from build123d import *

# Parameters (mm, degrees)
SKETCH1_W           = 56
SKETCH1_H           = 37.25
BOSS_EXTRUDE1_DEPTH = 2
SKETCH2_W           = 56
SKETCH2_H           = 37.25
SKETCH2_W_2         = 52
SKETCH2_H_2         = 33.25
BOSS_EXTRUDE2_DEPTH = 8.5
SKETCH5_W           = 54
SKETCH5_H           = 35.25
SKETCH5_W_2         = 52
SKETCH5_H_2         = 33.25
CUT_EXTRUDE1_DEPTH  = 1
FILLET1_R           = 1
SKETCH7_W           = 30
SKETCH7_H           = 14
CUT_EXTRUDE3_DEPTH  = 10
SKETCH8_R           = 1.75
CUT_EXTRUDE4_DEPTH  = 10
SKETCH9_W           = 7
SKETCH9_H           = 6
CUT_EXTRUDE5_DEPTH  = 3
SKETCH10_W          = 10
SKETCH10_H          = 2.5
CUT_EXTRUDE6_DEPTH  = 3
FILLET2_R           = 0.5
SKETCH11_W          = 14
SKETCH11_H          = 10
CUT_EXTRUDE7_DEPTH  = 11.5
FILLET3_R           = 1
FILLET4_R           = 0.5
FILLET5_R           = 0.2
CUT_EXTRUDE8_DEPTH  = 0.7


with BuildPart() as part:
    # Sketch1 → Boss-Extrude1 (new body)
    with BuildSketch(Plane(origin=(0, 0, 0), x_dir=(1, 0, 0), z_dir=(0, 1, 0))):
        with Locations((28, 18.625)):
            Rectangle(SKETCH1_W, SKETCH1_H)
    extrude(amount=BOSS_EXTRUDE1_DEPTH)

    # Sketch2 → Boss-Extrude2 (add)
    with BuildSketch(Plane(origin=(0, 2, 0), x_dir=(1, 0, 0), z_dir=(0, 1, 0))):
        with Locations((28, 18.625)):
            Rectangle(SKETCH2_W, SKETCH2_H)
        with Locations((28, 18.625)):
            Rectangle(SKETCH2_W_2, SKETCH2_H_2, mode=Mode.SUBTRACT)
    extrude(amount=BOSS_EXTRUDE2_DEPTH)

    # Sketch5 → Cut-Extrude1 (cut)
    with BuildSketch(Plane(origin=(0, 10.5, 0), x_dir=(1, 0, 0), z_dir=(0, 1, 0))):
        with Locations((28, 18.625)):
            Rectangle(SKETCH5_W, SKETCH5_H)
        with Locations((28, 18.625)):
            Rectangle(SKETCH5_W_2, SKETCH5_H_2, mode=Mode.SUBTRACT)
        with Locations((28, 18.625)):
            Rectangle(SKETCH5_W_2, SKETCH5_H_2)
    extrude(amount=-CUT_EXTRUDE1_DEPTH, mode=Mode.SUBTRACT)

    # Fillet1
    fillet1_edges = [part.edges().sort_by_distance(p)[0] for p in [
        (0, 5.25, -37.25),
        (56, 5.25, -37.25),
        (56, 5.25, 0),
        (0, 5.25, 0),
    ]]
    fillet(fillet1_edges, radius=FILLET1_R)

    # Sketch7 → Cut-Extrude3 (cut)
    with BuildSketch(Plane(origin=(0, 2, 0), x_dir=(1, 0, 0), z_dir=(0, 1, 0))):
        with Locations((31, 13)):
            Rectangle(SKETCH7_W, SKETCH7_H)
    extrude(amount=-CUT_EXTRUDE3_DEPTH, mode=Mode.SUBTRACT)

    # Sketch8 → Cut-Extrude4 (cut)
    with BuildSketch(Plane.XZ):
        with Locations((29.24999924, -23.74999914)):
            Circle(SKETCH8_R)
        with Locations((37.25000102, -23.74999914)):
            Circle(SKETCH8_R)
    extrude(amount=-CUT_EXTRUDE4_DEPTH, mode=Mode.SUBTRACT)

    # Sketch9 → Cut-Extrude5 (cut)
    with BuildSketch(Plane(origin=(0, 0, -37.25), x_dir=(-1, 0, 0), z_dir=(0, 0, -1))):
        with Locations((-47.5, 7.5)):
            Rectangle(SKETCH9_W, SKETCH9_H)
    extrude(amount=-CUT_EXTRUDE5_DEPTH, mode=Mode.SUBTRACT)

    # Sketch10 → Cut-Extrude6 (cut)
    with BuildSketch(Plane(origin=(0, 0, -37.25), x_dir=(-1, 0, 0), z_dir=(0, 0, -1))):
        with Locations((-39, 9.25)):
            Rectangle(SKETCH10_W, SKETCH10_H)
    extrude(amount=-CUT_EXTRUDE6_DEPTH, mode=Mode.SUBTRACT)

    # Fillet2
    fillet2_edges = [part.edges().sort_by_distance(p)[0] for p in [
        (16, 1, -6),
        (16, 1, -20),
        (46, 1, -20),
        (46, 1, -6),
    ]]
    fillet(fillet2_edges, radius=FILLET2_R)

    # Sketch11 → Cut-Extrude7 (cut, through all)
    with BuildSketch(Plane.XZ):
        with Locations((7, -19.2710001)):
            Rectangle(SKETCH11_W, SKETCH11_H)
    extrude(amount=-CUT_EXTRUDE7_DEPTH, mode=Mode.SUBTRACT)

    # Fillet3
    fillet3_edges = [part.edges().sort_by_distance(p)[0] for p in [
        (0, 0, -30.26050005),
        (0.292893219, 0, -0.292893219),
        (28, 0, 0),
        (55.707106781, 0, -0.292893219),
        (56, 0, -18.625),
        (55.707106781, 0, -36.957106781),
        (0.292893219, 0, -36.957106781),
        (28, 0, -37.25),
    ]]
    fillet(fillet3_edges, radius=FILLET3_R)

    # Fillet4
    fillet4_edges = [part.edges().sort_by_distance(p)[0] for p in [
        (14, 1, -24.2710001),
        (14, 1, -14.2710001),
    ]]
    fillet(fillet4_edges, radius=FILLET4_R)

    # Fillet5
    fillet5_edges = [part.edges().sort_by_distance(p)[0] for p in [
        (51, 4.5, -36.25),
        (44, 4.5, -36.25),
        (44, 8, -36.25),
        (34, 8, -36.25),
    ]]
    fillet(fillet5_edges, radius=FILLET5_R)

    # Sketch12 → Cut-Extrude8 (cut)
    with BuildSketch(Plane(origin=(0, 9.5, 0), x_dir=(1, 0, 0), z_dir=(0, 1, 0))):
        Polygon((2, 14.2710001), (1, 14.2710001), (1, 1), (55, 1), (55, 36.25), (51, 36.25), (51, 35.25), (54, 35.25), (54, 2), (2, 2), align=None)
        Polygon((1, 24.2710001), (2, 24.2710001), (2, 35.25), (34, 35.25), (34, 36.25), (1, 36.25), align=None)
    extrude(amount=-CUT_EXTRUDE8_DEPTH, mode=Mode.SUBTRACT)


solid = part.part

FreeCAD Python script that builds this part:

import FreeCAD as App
import Part
import Sketcher

V = App.Vector
Q = App.Units.Quantity


def edges_at(feature, points):
    """Names of the edges that pass closest to the given points."""
    edges = feature.Shape.Edges
    near = lambda p: min(range(len(edges)), key=lambda i: edges[i].distToShape(Part.Vertex(*p))[0])
    return sorted({f"Edge{near(p) + 1}" for p in points})


def add_polygon(sketch, points):
    """Adds a closed chain of lines whose ends are joined by coincident constraints."""
    first, n = sketch.GeometryCount, len(points)
    for a, b in zip(points, points[1:] + points[:1]):
        sketch.addGeometry(Part.LineSegment(App.Vector(*a, 0), App.Vector(*b, 0)), False)
    for i in range(n):
        sketch.addConstraint(Sketcher.Constraint("Coincident", first + i, 2, first + (i + 1) % n, 1))

doc = App.newDocument("Part")
params = doc.addObject("Spreadsheet::Sheet", "Params")
for row, (alias, value) in enumerate([
    ("sketch1_width", "56 mm"),
    ("sketch1_height", "37.25 mm"),
    ("pad1_length", "2 mm"),
    ("sketch2_width", "56 mm"),
    ("sketch2_width2", "52 mm"),
    ("sketch2_height", "37.25 mm"),
    ("pad2_length", "8.5 mm"),
    ("sketch3_width", "54 mm"),
    ("sketch3_height", "35.25 mm"),
    ("pocket1_length", "1 mm"),
    ("fillet_radius", "1 mm"),
    ("sketch4_width", "30 mm"),
    ("sketch4_height", "14 mm"),
    ("pocket2_length", "10 mm"),
    ("sketch5_diameter", "3.5 mm"),
    ("pocket3_length", "10 mm"),
    ("sketch6_width", "7 mm"),
    ("sketch6_height", "6 mm"),
    ("pocket4_length", "3 mm"),
    ("sketch7_width", "10 mm"),
    ("sketch7_height", "2.5 mm"),
    ("pocket5_length", "3 mm"),
    ("fillet2_radius", "0.5 mm"),
    ("sketch8_width", "14 mm"),
    ("sketch8_height", "10 mm"),
    ("fillet3_radius", "1 mm"),
    ("fillet4_radius", "0.5 mm"),
    ("fillet5_radius", "0.2 mm"),
    ("sketch9_width", "1 mm"),
    ("sketch9_width2", "54 mm"),
    ("sketch9_width3", "4 mm"),
    ("sketch9_width4", "3 mm"),
    ("sketch9_width5", "32 mm"),
    ("pocket7_length", "0.7 mm"),
], start=1):
    params.set(f"A{row}", alias)
    params.set(f"B{row}", "=" + value)
    params.setAlias(f"B{row}", alias)

body = doc.addObject("PartDesign::Body", "Body")

sketch1 = body.newObject("Sketcher::SketchObject", "Sketch")
sketch1.AttachmentSupport = (doc.getObject("XZ_Plane"), [""])
sketch1.MapMode = "FlatFace"
add_polygon(sketch1, [(0, -37), (0, 0), (56, 0), (56, -37)])
sketch1.addConstraint([
    Sketcher.Constraint("Vertical", 0),
    Sketcher.Constraint("Horizontal", 1),
    Sketcher.Constraint("Vertical", 2),
    Sketcher.Constraint("Horizontal", 3),
    Sketcher.Constraint("Coincident", 0, 2, -1, 1),
    Sketcher.Constraint("DistanceX", 1, 1, 1, 2, Q("56 mm")),
    Sketcher.Constraint("DistanceY", 0, 1, 0, 2, Q("37.25 mm")),
])
sketch1.setExpression("Constraints[9]", "Params.sketch1_width")
sketch1.setExpression("Constraints[10]", "Params.sketch1_height")
pad1 = body.newObject("PartDesign::Pad", "Pad")
pad1.Profile = sketch1
pad1.setExpression("Length", "Params.pad1_length")
pad1.Reversed = True

sketch2 = body.newObject("Sketcher::SketchObject", "Sketch001")
sketch2.AttachmentSupport = (doc.getObject("XZ_Plane"), [""])
sketch2.MapMode = "FlatFace"
sketch2.AttachmentOffset = App.Placement(V(0, 0, -2), App.Rotation())
add_polygon(sketch2, [(0, -37), (0, 0), (56, 0), (56, -37)])
add_polygon(sketch2, [(54, -2), (2, -2), (2, -35), (54, -35)])
sketch2.addConstraint([
    Sketcher.Constraint("Vertical", 0),
    Sketcher.Constraint("Horizontal", 1),
    Sketcher.Constraint("Vertical", 2),
    Sketcher.Constraint("Horizontal", 3),
    Sketcher.Constraint("Horizontal", 4),
    Sketcher.Constraint("Vertical", 5),
    Sketcher.Constraint("Horizontal", 6),
    Sketcher.Constraint("Vertical", 7),
    Sketcher.Constraint("Coincident", 0, 2, -1, 1),
    Sketcher.Constraint("DistanceX", 1, 1, 1, 2, Q("56 mm")),
    Sketcher.Constraint("DistanceX", 4, 2, 4, 1, Q("52 mm")),
    Sketcher.Constraint("DistanceX", -1, 1, 4, 2, Q("2 mm")),
    Sketcher.Constraint("DistanceY", 4, 2, -1, 1, Q("2 mm")),
    Sketcher.Constraint("DistanceY", 3, 2, 5, 2, Q("2 mm")),
    Sketcher.Constraint("DistanceY", 0, 1, 0, 2, Q("37.25 mm")),
])
sketch2.setExpression("Constraints[17]", "Params.sketch2_width")
sketch2.setExpression("Constraints[18]", "Params.sketch2_width2")
sketch2.setExpression("Constraints[22]", "Params.sketch2_height")
pad2 = body.newObject("PartDesign::Pad", "Pad001")
pad2.Profile = sketch2
pad2.setExpression("Length", "Params.pad2_length")
pad2.Reversed = True

sketch3 = body.newObject("Sketcher::SketchObject", "Sketch002")
sketch3.AttachmentSupport = (doc.getObject("XZ_Plane"), [""])
sketch3.MapMode = "FlatFace"
sketch3.AttachmentOffset = App.Placement(V(0, 0, -10.5), App.Rotation())
add_polygon(sketch3, [(1, -36), (1, -1), (55, -1), (55, -36)])
sketch3.addConstraint([
    Sketcher.Constraint("Vertical", 0),
    Sketcher.Constraint("Horizontal", 1),
    Sketcher.Constraint("Vertical", 2),
    Sketcher.Constraint("Horizontal", 3),
    Sketcher.Constraint("DistanceX", 1, 1, 1, 2, Q("54 mm")),
    Sketcher.Constraint("DistanceX", -1, 1, 0, 2, Q("1 mm")),
    Sketcher.Constraint("DistanceY", 0, 2, -1, 1, Q("1 mm")),
    Sketcher.Constraint("DistanceY", 0, 1, 0, 2, Q("35.25 mm")),
])
sketch3.setExpression("Constraints[8]", "Params.sketch3_width")
sketch3.setExpression("Constraints[11]", "Params.sketch3_height")
pocket1 = body.newObject("PartDesign::Pocket", "Pocket")
pocket1.Profile = sketch3
pocket1.setExpression("Length", "Params.pocket1_length")
pocket1.Reversed = True
doc.recompute()

fillet = body.newObject("PartDesign::Fillet", "Fillet")
fillet.Base = (pocket1, edges_at(pocket1, [
    (0, 5.25, -37.25),
    (56, 5.25, -37.25),
    (56, 5.25, 0),
    (0, 5.25, 0),
]))
fillet.setExpression("Radius", "Params.fillet_radius")

sketch4 = body.newObject("Sketcher::SketchObject", "Sketch003")
sketch4.AttachmentSupport = (doc.getObject("XZ_Plane"), [""])
sketch4.MapMode = "FlatFace"
sketch4.AttachmentOffset = App.Placement(V(0, 0, -2), App.Rotation())
add_polygon(sketch4, [(16, -20), (16, -6), (46, -6), (46, -20)])
sketch4.addConstraint([
    Sketcher.Constraint("Vertical", 0),
    Sketcher.Constraint("Horizontal", 1),
    Sketcher.Constraint("Vertical", 2),
    Sketcher.Constraint("Horizontal", 3),
    Sketcher.Constraint("DistanceX", 1, 1, 1, 2, Q("30 mm")),
    Sketcher.Constraint("DistanceY", 0, 1, 0, 2, Q("14 mm")),
    Sketcher.Constraint("DistanceX", -1, 1, 0, 2, Q("16 mm")),
    Sketcher.Constraint("DistanceY", 0, 2, -1, 1, Q("6 mm")),
])
sketch4.setExpression("Constraints[8]", "Params.sketch4_width")
sketch4.setExpression("Constraints[9]", "Params.sketch4_height")
pocket2 = body.newObject("PartDesign::Pocket", "Pocket001")
pocket2.Profile = sketch4
pocket2.setExpression("Length", "Params.pocket2_length")
pocket2.Reversed = True

sketch5 = body.newObject("Sketcher::SketchObject", "Sketch004")
sketch5.AttachmentSupport = (doc.getObject("XZ_Plane"), [""])
sketch5.MapMode = "FlatFace"
sketch5.addGeometry([
    Part.Circle(V(29.2, -23.7, 0), V(0, 0, 1), 1.8),
    Part.Circle(V(37.3, -23.7, 0), V(0, 0, 1), 1.8),
], False)
sketch5.addConstraint([
    Sketcher.Constraint("Equal", 0, 1),
    Sketcher.Constraint("Horizontal", 0, 3, 1, 3),
    Sketcher.Constraint("Diameter", 0, Q("3.5 mm")),
    Sketcher.Constraint("DistanceX", 0, 3, 1, 3, Q("8.000002 mm")),
    Sketcher.Constraint("DistanceX", -1, 1, 0, 3, Q("29.249999 mm")),
    Sketcher.Constraint("DistanceY", 0, 3, -1, 1, Q("23.749999 mm")),
])
sketch5.setExpression("Constraints[2]", "Params.sketch5_diameter")
pocket3 = body.newObject("PartDesign::Pocket", "Pocket002")
pocket3.Profile = sketch5
pocket3.setExpression("Length", "Params.pocket3_length")

sketch6 = body.newObject("Sketcher::SketchObject", "Sketch005")
sketch6.AttachmentSupport = (doc.getObject("XY_Plane"), [""])
sketch6.MapMode = "FlatFace"
sketch6.AttachmentOffset = App.Placement(V(0, 0, -37.25), App.Rotation())
add_polygon(sketch6, [(51, 10), (51, 4), (44, 4), (44, 10)])
sketch6.addConstraint([
    Sketcher.Constraint("Vertical", 0),
    Sketcher.Constraint("Horizontal", 1),
    Sketcher.Constraint("Vertical", 2),
    Sketcher.Constraint("Horizontal", 3),
    Sketcher.Constraint("DistanceX", 1, 2, 1, 1, Q("7 mm")),
    Sketcher.Constraint("DistanceY", 0, 2, 0, 1, Q("6 mm")),
    Sketcher.Constraint("DistanceX", -1, 1, 0, 2, Q("51 mm")),
    Sketcher.Constraint("DistanceY", -1, 1, 0, 2, Q("4.5 mm")),
])
sketch6.setExpression("Constraints[8]", "Params.sketch6_width")
sketch6.setExpression("Constraints[9]", "Params.sketch6_height")
pocket4 = body.newObject("PartDesign::Pocket", "Pocket003")
pocket4.Profile = sketch6
pocket4.setExpression("Length", "Params.pocket4_length")
pocket4.Reversed = True

sketch7 = body.newObject("Sketcher::SketchObject", "Sketch006")
sketch7.AttachmentSupport = (doc.getObject("XY_Plane"), [""])
sketch7.MapMode = "FlatFace"
sketch7.AttachmentOffset = App.Placement(V(0, 0, -37.25), App.Rotation())
add_polygon(sketch7, [(44, 10.5), (44, 8), (34, 8), (34, 10.5)])
sketch7.addConstraint([
    Sketcher.Constraint("Vertical", 0),
    Sketcher.Constraint("Horizontal", 1),
    Sketcher.Constraint("Vertical", 2),
    Sketcher.Constraint("Horizontal", 3),
    Sketcher.Constraint("DistanceX", 1, 2, 1, 1, Q("10 mm")),
    Sketcher.Constraint("DistanceY", 0, 2, 0, 1, Q("2.5 mm")),
    Sketcher.Constraint("DistanceX", -1, 1, 0, 2, Q("44 mm")),
    Sketcher.Constraint("DistanceY", -1, 1, 0, 2, Q("8 mm")),
])
sketch7.setExpression("Constraints[8]", "Params.sketch7_width")
sketch7.setExpression("Constraints[9]", "Params.sketch7_height")
pocket5 = body.newObject("PartDesign::Pocket", "Pocket004")
pocket5.Profile = sketch7
pocket5.setExpression("Length", "Params.pocket5_length")
pocket5.Reversed = True
doc.recompute()

fillet2 = body.newObject("PartDesign::Fillet", "Fillet001")
fillet2.Base = (pocket5, edges_at(pocket5, [
    (16, 1, -6),
    (16, 1, -20),
    (46, 1, -20),
    (46, 1, -6),
]))
fillet2.setExpression("Radius", "Params.fillet2_radius")

sketch8 = body.newObject("Sketcher::SketchObject", "Sketch007")
sketch8.AttachmentSupport = (doc.getObject("XZ_Plane"), [""])
sketch8.MapMode = "FlatFace"
add_polygon(sketch8, [(0, -14), (0, -24), (14, -24), (14, -14)])
sketch8.addConstraint([
    Sketcher.Constraint("Vertical", 0),
    Sketcher.Constraint("Horizontal", 1),
    Sketcher.Constraint("Vertical", 2),
    Sketcher.Constraint("Horizontal", 3),
    Sketcher.Constraint("PointOnObject", 0, 2, -2),
    Sketcher.Constraint("DistanceX", 1, 1, 1, 2, Q("14 mm")),
    Sketcher.Constraint("DistanceY", 0, 2, 0, 1, Q("10 mm")),
    Sketcher.Constraint("DistanceY", 0, 2, -1, 1, Q("24.271 mm")),
])
sketch8.setExpression("Constraints[9]", "Params.sketch8_width")
sketch8.setExpression("Constraints[10]", "Params.sketch8_height")
pocket6 = body.newObject("PartDesign::Pocket", "Pocket005")
pocket6.Profile = sketch8
pocket6.Type = "ThroughAll"
doc.recompute()

fillet3 = body.newObject("PartDesign::Fillet", "Fillet002")
fillet3.Base = (pocket6, edges_at(pocket6, [
    (0, 0, -30.261),
    (0.293, 0, -0.293),
    (28, 0, 0),
    (55.707, 0, -0.293),
    (56, 0, -18.625),
    (55.707, 0, -36.957),
    (0.293, 0, -36.957),
    (28, 0, -37.25),
]))
fillet3.setExpression("Radius", "Params.fillet3_radius")
doc.recompute()

fillet4 = body.newObject("PartDesign::Fillet", "Fillet003")
fillet4.Base = (fillet3, edges_at(fillet3, [(14, 1, -24.271), (14, 1, -14.271)]))
fillet4.setExpression("Radius", "Params.fillet4_radius")
doc.recompute()

fillet5 = body.newObject("PartDesign::Fillet", "Fillet004")
fillet5.Base = (fillet4, edges_at(fillet4, [
    (51, 4.5, -36.25),
    (44, 4.5, -36.25),
    (44, 8, -36.25),
    (34, 8, -36.25),
]))
fillet5.setExpression("Radius", "Params.fillet5_radius")

sketch9 = body.newObject("Sketcher::SketchObject", "Sketch008")
sketch9.AttachmentSupport = (doc.getObject("XZ_Plane"), [""])
sketch9.MapMode = "FlatFace"
sketch9.AttachmentOffset = App.Placement(V(0, 0, -9.5), App.Rotation())
add_polygon(sketch9, [(2, -14.3), (1, -14.3), (1, -1), (55, -1), (55, -36.2), (51, -36.2), (51, -35.2), (54, -35.2), (54, -2), (2, -2)])
add_polygon(sketch9, [(1, -24.3), (2, -24.3), (2, -35.2), (34, -35.2), (34, -36.2), (1, -36.2)])
sketch9.addConstraint([
    Sketcher.Constraint("Horizontal", 0),
    Sketcher.Constraint("Vertical", 1),
    Sketcher.Constraint("Horizontal", 2),
    Sketcher.Constraint("Vertical", 3),
    Sketcher.Constraint("Horizontal", 4),
    Sketcher.Constraint("Vertical", 5),
    Sketcher.Constraint("Horizontal", 6),
    Sketcher.Constraint("Vertical", 7),
    Sketcher.Constraint("Horizontal", 8),
    Sketcher.Constraint("Vertical", 9),
    Sketcher.Constraint("Horizontal", 10),
    Sketcher.Constraint("Vertical", 11),
    Sketcher.Constraint("Horizontal", 12),
    Sketcher.Constraint("Vertical", 13),
    Sketcher.Constraint("Horizontal", 14),
    Sketcher.Constraint("Vertical", 15),
    Sketcher.Constraint("Horizontal", 6, 2, 11, 2),
    Sketcher.Constraint("Horizontal", 4, 2, 13, 2),
    Sketcher.Constraint("Vertical", 9, 2, 10, 2),
    Sketcher.Constraint("Vertical", 1, 2, 14, 2),
    Sketcher.Constraint("Equal", 10, 5),
    Sketcher.Constraint("DistanceX", 0, 2, 0, 1, Q("1 mm")),
    Sketcher.Constraint("DistanceX", 2, 1, 2, 2, Q("54 mm")),
    Sketcher.Constraint("DistanceX", 4, 2, 4, 1, Q("4 mm")),
    Sketcher.Constraint("DistanceX", 6, 1, 6, 2, Q("3 mm")),
    Sketcher.Constraint("DistanceX", 12, 1, 12, 2, Q("32 mm")),
    Sketcher.Constraint("DistanceX", -1, 1, 0, 2, Q("1 mm")),
    Sketcher.Constraint("DistanceY", 1, 2, -1, 1, Q("1 mm")),
    Sketcher.Constraint("DistanceY", 7, 2, -1, 1, Q("2 mm")),
    Sketcher.Constraint("DistanceY", 10, 2, 9, 2, Q("10 mm")),
    Sketcher.Constraint("DistanceY", 3, 2, 3, 1, Q("35.25 mm")),
    Sketcher.Constraint("DistanceY", 1, 1, 1, 2, Q("13.271 mm")),
])
sketch9.setExpression("Constraints[37]", "Params.sketch9_width")
sketch9.setExpression("Constraints[38]", "Params.sketch9_width2")
sketch9.setExpression("Constraints[39]", "Params.sketch9_width3")
sketch9.setExpression("Constraints[40]", "Params.sketch9_width4")
sketch9.setExpression("Constraints[41]", "Params.sketch9_width5")
pocket7 = body.newObject("PartDesign::Pocket", "Pocket006")
pocket7.Profile = sketch9
pocket7.setExpression("Length", "Params.pocket7_length")
pocket7.Reversed = True

doc.recompute()
